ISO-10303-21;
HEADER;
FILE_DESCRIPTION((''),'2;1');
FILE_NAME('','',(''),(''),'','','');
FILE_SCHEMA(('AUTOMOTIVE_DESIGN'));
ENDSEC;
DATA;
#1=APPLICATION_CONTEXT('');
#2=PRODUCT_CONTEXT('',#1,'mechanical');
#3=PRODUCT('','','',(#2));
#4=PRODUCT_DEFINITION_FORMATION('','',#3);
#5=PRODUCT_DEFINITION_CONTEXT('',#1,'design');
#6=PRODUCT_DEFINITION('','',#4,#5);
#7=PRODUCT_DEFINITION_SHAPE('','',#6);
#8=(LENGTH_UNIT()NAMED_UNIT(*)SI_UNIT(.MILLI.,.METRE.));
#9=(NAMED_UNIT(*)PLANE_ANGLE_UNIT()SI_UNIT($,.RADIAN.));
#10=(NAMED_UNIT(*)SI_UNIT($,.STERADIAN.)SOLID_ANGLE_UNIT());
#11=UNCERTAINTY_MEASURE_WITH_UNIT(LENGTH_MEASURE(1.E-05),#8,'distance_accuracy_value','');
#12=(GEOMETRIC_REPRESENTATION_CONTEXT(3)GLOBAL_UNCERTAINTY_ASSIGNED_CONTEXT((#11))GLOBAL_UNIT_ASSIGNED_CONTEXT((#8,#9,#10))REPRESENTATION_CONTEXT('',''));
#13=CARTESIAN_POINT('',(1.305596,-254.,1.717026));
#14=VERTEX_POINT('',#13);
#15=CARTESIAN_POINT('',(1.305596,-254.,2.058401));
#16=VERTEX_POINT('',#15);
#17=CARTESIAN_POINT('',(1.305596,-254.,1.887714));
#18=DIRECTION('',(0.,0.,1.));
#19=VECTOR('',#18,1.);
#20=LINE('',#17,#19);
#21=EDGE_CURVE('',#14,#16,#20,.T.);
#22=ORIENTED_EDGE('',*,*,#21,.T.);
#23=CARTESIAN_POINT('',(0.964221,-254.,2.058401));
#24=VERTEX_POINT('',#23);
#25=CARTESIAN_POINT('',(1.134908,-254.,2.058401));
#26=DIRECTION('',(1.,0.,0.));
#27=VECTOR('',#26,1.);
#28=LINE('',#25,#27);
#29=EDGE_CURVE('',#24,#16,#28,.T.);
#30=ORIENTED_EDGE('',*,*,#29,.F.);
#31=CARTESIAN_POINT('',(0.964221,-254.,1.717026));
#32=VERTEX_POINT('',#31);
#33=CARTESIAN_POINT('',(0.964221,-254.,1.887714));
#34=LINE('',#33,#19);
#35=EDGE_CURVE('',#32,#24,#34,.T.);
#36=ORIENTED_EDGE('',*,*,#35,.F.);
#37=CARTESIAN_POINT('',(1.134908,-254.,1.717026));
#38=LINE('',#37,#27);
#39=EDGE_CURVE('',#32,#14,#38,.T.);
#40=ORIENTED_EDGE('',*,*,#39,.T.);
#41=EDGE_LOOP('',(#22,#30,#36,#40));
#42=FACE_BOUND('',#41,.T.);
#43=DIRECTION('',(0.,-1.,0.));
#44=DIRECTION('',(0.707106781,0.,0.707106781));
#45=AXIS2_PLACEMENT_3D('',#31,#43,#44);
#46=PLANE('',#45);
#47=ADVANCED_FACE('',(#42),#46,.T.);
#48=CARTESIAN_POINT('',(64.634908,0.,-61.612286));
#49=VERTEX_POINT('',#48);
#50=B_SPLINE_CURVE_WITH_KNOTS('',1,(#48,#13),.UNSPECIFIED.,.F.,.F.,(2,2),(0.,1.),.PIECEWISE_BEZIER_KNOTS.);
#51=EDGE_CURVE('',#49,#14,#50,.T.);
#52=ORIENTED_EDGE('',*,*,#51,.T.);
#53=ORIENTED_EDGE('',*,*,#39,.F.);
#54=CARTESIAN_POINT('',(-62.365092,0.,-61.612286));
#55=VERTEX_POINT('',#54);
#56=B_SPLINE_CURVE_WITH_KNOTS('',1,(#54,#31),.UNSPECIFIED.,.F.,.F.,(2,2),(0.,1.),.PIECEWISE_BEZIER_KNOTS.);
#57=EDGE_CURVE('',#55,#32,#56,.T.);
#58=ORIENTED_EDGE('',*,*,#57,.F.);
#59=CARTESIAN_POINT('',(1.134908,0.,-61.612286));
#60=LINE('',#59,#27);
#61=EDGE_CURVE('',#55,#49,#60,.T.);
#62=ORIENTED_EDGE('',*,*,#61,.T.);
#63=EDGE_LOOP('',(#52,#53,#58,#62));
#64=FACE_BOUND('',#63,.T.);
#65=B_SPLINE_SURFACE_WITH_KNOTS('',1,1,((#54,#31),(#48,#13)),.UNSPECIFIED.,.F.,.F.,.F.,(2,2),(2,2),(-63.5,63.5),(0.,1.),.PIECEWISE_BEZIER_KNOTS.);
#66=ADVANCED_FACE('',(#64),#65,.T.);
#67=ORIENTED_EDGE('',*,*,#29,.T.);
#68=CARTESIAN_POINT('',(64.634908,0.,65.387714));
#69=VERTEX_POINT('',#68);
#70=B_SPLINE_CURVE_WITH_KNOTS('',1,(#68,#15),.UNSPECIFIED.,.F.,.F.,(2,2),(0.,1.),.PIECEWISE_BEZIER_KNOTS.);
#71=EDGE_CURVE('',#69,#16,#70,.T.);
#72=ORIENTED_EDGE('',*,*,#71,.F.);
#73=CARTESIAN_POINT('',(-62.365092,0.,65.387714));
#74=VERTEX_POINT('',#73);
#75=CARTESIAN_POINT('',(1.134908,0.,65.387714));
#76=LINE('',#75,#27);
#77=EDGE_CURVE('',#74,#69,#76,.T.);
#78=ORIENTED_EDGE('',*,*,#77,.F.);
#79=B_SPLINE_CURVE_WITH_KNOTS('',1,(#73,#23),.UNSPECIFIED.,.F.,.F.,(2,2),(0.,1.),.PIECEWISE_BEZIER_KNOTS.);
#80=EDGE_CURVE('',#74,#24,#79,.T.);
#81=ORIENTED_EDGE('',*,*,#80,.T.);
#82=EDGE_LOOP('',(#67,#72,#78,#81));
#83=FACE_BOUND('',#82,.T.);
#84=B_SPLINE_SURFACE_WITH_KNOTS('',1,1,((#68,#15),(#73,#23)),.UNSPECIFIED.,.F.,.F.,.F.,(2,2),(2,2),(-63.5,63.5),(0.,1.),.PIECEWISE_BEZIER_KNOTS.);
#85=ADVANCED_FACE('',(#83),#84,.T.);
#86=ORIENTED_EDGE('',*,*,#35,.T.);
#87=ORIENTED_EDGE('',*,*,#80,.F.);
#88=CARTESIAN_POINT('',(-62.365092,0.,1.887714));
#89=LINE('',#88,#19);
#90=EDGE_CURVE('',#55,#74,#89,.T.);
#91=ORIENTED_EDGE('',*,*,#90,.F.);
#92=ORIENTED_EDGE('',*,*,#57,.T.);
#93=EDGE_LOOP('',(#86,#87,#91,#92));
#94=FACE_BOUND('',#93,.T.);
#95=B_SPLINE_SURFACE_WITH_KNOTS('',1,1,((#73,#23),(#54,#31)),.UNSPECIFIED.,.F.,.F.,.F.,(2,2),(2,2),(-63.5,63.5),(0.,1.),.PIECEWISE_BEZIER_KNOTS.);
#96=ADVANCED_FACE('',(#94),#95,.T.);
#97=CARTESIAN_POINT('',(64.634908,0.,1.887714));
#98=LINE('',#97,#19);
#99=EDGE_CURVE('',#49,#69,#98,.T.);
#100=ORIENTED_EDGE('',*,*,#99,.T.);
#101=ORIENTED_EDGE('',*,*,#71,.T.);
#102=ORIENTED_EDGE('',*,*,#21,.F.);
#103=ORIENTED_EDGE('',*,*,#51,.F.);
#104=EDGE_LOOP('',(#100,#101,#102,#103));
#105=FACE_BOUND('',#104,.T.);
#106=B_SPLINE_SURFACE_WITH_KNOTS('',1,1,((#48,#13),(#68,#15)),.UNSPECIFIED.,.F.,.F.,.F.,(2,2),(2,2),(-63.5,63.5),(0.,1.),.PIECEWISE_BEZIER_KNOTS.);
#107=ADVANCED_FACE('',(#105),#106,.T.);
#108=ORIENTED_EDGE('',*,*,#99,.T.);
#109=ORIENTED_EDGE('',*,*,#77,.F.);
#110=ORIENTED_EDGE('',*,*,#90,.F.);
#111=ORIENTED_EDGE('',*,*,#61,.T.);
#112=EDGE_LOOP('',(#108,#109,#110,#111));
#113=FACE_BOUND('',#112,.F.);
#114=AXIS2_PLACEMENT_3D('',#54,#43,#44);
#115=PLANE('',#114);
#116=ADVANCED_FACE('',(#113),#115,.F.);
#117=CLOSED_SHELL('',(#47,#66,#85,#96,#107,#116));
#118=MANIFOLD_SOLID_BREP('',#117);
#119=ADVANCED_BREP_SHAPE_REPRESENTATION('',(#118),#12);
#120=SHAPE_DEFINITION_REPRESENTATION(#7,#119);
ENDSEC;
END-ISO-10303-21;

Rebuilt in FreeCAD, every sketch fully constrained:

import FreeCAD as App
import Part
import Sketcher
Q = App.Units.Quantity


def add_polygon(sketch, points):
    """Adds a closed chain of lines whose ends are joined by coincident constraints."""
    first, n = sketch.GeometryCount, len(points)
    for a, b in zip(points, points[1:] + points[:1]):
        sketch.addGeometry(Part.LineSegment(App.Vector(*a, 0), App.Vector(*b, 0)), False)
    for i in range(n):
        sketch.addConstraint(Sketcher.Constraint("Coincident", first + i, 2, first + (i + 1) % n, 1))

doc = App.newDocument("Part")
body = doc.addObject("PartDesign::Body", "Body")

sketch1 = body.newObject("Sketcher::SketchObject", "Sketch")
sketch1.AttachmentSupport = (doc.getObject("XZ_Plane"), [""])
sketch1.MapMode = "FlatFace"
add_polygon(sketch1, [(-62, 65), (-62, -62), (65, -62), (65, 65)])
sketch1.addConstraint([
    Sketcher.Constraint("Vertical", 0),
    Sketcher.Constraint("Horizontal", 1),
    Sketcher.Constraint("Vertical", 2),
    Sketcher.Constraint("Horizontal", 3),
    Sketcher.Constraint("Equal", 3, 0),
    Sketcher.Constraint("DistanceX", 1, 1, 1, 2, Q("5 in")),
    Sketcher.Constraint("DistanceX", 0, 2, -1, 1, 62.365092),
    Sketcher.Constraint("DistanceY", 0, 2, -1, 1, 61.612286),
])
pad1 = body.newObject("PartDesign::Pad", "Pad")
pad1.Profile = sketch1
pad1.Length = Q("10 in")
pad1.TaperAngle = -14

doc.recompute()
